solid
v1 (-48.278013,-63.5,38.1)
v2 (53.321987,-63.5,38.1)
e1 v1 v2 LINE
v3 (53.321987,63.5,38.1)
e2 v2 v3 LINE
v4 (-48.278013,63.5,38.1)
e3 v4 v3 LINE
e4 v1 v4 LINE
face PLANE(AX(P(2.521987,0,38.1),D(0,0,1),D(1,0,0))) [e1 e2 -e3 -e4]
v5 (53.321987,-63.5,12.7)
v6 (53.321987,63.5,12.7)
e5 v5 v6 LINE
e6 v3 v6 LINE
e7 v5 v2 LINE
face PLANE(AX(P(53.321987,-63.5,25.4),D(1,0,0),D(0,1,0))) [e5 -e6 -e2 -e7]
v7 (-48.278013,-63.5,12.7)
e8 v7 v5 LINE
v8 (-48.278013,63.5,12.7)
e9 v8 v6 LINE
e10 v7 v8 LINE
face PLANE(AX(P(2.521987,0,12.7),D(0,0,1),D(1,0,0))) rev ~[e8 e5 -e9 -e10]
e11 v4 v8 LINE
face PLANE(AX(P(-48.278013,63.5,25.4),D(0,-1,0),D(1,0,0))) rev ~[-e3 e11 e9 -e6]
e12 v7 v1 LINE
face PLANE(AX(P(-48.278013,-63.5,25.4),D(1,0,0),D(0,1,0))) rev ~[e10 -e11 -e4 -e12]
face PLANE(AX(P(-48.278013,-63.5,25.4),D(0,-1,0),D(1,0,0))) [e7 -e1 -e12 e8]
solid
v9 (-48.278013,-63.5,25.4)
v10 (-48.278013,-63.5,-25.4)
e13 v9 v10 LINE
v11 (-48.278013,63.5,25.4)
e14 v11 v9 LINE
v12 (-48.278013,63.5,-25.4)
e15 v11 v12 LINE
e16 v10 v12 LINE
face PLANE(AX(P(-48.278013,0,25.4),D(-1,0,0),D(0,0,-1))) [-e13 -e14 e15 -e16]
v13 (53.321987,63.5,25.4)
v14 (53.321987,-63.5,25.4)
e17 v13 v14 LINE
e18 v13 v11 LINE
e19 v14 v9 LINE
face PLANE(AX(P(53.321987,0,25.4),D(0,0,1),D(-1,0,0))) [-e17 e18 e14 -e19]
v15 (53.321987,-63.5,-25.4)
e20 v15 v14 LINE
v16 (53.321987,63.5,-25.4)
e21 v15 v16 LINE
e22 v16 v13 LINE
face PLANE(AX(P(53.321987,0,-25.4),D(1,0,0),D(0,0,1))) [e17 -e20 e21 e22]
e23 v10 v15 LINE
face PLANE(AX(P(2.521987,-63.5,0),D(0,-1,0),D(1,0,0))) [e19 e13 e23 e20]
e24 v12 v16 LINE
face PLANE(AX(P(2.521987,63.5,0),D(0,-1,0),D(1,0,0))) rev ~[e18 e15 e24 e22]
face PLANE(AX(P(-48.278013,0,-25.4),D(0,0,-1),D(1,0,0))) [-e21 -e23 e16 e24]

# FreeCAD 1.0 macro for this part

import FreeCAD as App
import Part
import Sketcher
from FreeCAD import Vector
Q = App.Units.Quantity

doc = App.newDocument("Part")
body = doc.addObject("PartDesign::Body", "Body")

sketch1 = body.newObject("Sketcher::SketchObject", "Sketch")
sketch1.AttachmentSupport = (doc.getObject("XZ_Plane"), [""])
sketch1.MapMode = "FlatFace"
sketch1.addGeometry([
    Part.LineSegment(Vector(53, -25, 0), Vector(53, 25, 0)),
    Part.LineSegment(Vector(53, 25, 0), Vector(-48, 25, 0)),
    Part.LineSegment(Vector(-48, 25, 0), Vector(-48, -25, 0)),
    Part.LineSegment(Vector(-48, -25, 0), Vector(53, -25, 0)),
], False)
sketch1.addConstraint([
    Sketcher.Constraint("Coincident", 0, 2, 1, 1),
    Sketcher.Constraint("Coincident", 1, 2, 2, 1),
    Sketcher.Constraint("Coincident", 2, 2, 3, 1),
    Sketcher.Constraint("Coincident", 3, 2, 0, 1),
    Sketcher.Constraint("Vertical", 0),
    Sketcher.Constraint("Horizontal", 1),
    Sketcher.Constraint("Vertical", 2),
    Sketcher.Constraint("Horizontal", 3),
    Sketcher.Constraint("DistanceX", 1, 2, 1, 1, Q("4 in")),
    Sketcher.Constraint("DistanceY", 0, 1, 0, 2, Q("2 in")),
    Sketcher.Constraint("DistanceY", -1, 1, 0, 2, Q("1 in")),
    Sketcher.Constraint("DistanceX", -1, 1, 0, 2, 53.321987),
])
pad1 = body.newObject("PartDesign::Pad", "Pad")
pad1.Profile = sketch1
pad1.Length = Q("5 in")
pad1.Midplane = True
body2 = doc.addObject("PartDesign::Body", "Body001")

sketch2 = body2.newObject("Sketcher::SketchObject", "Sketch001")
sketch2.AttachmentSupport = (doc.getObject("XY_Plane001"), [""])
sketch2.MapMode = "FlatFace"
sketch2.AttachmentOffset = App.Placement(Vector(0, 0, 1 * 25.4), App.Rotation())
sketch2.addGeometry([
    Part.LineSegment(Vector(-48, 64, 0), Vector(-48, -64, 0)),
    Part.LineSegment(Vector(-48, -64, 0), Vector(53, -64, 0)),
    Part.LineSegment(Vector(53, -64, 0), Vector(53, 64, 0)),
    Part.LineSegment(Vector(53, 64, 0), Vector(-48, 64, 0)),
], False)
sketch2.addConstraint([
    Sketcher.Constraint("Coincident", 0, 2, 1, 1),
    Sketcher.Constraint("Coincident", 1, 2, 2, 1),
    Sketcher.Constraint("Coincident", 2, 2, 3, 1),
    Sketcher.Constraint("Coincident", 3, 2, 0, 1),
    Sketcher.Constraint("Vertical", 0),
    Sketcher.Constraint("Horizontal", 1),
    Sketcher.Constraint("Vertical", 2),
    Sketcher.Constraint("Horizontal", 3),
    Sketcher.Constraint("DistanceX", 1, 1, 1, 2, Q("4 in")),
    Sketcher.Constraint("DistanceY", 0, 2, 0, 1, Q("5 in")),
    Sketcher.Constraint("DistanceY", 0, 2, -1, 1, Q("2.5 in")),
    Sketcher.Constraint("DistanceX", 0, 2, -1, 1, 48.278013),
])
pad2 = body2.newObject("PartDesign::Pad", "Pad001")
pad2.Profile = sketch2
pad2.Length = Q("1 in")
pad2.Midplane = True

doc.recompute()
